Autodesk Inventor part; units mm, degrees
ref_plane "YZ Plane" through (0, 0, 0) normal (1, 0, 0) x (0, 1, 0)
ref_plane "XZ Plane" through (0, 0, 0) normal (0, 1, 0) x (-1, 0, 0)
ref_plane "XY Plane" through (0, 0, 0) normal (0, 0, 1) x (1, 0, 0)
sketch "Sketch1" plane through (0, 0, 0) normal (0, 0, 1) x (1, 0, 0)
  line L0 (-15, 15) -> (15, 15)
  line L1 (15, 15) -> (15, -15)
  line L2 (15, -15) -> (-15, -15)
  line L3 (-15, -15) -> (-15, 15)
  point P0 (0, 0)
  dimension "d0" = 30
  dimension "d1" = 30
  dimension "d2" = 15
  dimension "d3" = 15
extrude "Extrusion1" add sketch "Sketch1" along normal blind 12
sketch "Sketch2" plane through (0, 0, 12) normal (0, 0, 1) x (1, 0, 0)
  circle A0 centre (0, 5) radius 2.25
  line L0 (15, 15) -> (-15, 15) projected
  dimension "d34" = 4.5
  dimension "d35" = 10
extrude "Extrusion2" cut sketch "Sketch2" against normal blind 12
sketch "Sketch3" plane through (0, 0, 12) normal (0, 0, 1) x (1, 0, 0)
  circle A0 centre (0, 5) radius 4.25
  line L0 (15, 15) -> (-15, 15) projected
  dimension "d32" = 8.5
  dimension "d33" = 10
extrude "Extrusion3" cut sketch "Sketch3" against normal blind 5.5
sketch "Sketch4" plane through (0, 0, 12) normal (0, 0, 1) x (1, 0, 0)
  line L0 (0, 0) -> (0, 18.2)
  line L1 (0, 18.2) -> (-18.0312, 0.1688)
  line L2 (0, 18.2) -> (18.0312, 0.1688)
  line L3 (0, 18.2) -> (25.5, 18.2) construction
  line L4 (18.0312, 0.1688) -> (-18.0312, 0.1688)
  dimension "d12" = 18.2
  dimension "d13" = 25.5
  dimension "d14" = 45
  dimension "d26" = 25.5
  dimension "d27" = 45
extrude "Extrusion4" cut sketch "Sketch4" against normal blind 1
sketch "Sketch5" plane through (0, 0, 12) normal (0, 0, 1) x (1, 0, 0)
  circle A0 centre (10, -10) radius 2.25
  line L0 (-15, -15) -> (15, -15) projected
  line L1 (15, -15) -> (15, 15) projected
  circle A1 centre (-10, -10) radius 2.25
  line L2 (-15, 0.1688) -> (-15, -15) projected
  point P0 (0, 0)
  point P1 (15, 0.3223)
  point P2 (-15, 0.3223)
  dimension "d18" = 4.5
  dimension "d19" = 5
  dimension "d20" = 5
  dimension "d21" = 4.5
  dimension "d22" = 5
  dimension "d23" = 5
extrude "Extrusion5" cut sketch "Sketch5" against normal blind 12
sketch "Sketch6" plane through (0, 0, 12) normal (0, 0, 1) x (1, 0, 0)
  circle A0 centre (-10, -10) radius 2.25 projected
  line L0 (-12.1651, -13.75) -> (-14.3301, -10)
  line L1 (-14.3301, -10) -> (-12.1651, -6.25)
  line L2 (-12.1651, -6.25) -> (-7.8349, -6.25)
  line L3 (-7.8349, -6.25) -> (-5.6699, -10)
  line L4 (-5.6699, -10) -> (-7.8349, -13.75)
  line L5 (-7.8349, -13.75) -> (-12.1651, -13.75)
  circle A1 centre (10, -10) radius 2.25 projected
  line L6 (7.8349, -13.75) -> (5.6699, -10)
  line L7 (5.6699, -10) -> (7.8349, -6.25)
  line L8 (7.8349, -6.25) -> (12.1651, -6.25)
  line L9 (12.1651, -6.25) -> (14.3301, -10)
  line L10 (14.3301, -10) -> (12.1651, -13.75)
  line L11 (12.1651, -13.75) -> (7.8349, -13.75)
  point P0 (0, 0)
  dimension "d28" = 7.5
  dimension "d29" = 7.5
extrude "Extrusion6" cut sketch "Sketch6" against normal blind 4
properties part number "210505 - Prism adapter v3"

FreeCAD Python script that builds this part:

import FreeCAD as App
import Part
import Sketcher
Q = App.Units.Quantity

doc = App.newDocument("Part")
body = doc.addObject("PartDesign::Body", "Body")

# Sketch on XY plane
sketch1 = body.newObject("Sketcher::SketchObject", "Sketch")
sketch1.AttachmentSupport = (doc.getObject("XY_Plane"), [""])
sketch1.MapMode = "FlatFace"
sketch1.addGeometry([
    Part.LineSegment(App.Vector(15, 15, 0), App.Vector(-15, 15, 0)),
    Part.LineSegment(App.Vector(-15, 15, 0), App.Vector(-15, -15, 0)),
    Part.LineSegment(App.Vector(-15, -15, 0), App.Vector(15, -15, 0)),
    Part.LineSegment(App.Vector(15, -15, 0), App.Vector(15, 15, 0)),
], False)
sketch1.addConstraint([
    Sketcher.Constraint("Coincident", 0, 2, 1, 1),
    Sketcher.Constraint("Coincident", 1, 2, 2, 1),
    Sketcher.Constraint("Coincident", 2, 2, 3, 1),
    Sketcher.Constraint("Coincident", 3, 2, 0, 1),
    Sketcher.Constraint("Horizontal", 0),
    Sketcher.Constraint("Vertical", 1),
    Sketcher.Constraint("Horizontal", 2),
    Sketcher.Constraint("Vertical", 3),
    Sketcher.Constraint("Symmetric", 0, 2, 2, 2, -1, 1),
    Sketcher.Constraint("Equal", 2, 1),
    Sketcher.Constraint("DistanceX", 0, 2, 0, 1, 30.0),
])
pad1 = body.newObject("PartDesign::Pad", "Pad")
pad1.Profile = sketch1
pad1.Length = 12

# Sketch on XY plane
sketch2 = body.newObject("Sketcher::SketchObject", "Sketch001")
sketch2.AttachmentSupport = (doc.getObject("XY_Plane"), [""])
sketch2.MapMode = "FlatFace"
sketch2.AttachmentOffset = App.Placement(App.Vector(0, 0, 12), App.Rotation())
sketch2.addGeometry(Part.Circle(App.Vector(0, 5, 0), App.Vector(0, 0, 1), 2.25), False)
sketch2.addConstraint([
    Sketcher.Constraint("PointOnObject", 0, 3, -2),
    Sketcher.Constraint("Diameter", 0, 4.5),
    Sketcher.Constraint("DistanceY", -1, 1, 0, 3, 5.0),
])
pocket1 = body.newObject("PartDesign::Pocket", "Pocket")
pocket1.Profile = sketch2
pocket1.Length = 12

# Sketch on XY plane
sketch3 = body.newObject("Sketcher::SketchObject", "Sketch002")
sketch3.AttachmentSupport = (doc.getObject("XY_Plane"), [""])
sketch3.MapMode = "FlatFace"
sketch3.AttachmentOffset = App.Placement(App.Vector(0, 0, 12), App.Rotation())
sketch3.addGeometry(Part.Circle(App.Vector(0, 5, 0), App.Vector(0, 0, 1), 4.25), False)
sketch3.addConstraint([
    Sketcher.Constraint("PointOnObject", 0, 3, -2),
    Sketcher.Constraint("Diameter", 0, 8.5),
    Sketcher.Constraint("DistanceY", -1, 1, 0, 3, 5.0),
])
pocket2 = body.newObject("PartDesign::Pocket", "Pocket001")
pocket2.Profile = sketch3
pocket2.Length = 5.5

# Sketch on XY plane
sketch4 = body.newObject("Sketcher::SketchObject", "Sketch003")
sketch4.AttachmentSupport = (doc.getObject("XY_Plane"), [""])
sketch4.MapMode = "FlatFace"
sketch4.AttachmentOffset = App.Placement(App.Vector(0, 0, 12), App.Rotation())
sketch4.addGeometry([
    Part.LineSegment(App.Vector(-18.0312, 0.1688, 0), App.Vector(18.0312, 0.1688, 0)),
    Part.LineSegment(App.Vector(18.0312, 0.1688, 0), App.Vector(0, 18.2, 0)),
    Part.LineSegment(App.Vector(0, 18.2, 0), App.Vector(-18.0312, 0.1688, 0)),
], False)
sketch4.addConstraint([
    Sketcher.Constraint("Coincident", 0, 2, 1, 1),
    Sketcher.Constraint("Coincident", 1, 2, 2, 1),
    Sketcher.Constraint("Coincident", 2, 2, 0, 1),
    Sketcher.Constraint("Horizontal", 0),
    Sketcher.Constraint("PointOnObject", 1, 2, -2),
    Sketcher.Constraint("Perpendicular", 1, 2),
    Sketcher.Constraint("Equal", 1, 2),
    Sketcher.Constraint("Distance", 1, 25.5),
    Sketcher.Constraint("DistanceY", -1, 1, 1, 2, 18.2),
])
pocket3 = body.newObject("PartDesign::Pocket", "Pocket002")
pocket3.Profile = sketch4
pocket3.Length = 1

# Sketch on XY plane
sketch5 = body.newObject("Sketcher::SketchObject", "Sketch004")
sketch5.AttachmentSupport = (doc.getObject("XY_Plane"), [""])
sketch5.MapMode = "FlatFace"
sketch5.AttachmentOffset = App.Placement(App.Vector(0, 0, 12), App.Rotation())
sketch5.addGeometry([
    Part.Circle(App.Vector(10, -10, 0), App.Vector(0, 0, 1), 2.25),
    Part.Circle(App.Vector(-10, -10, 0), App.Vector(0, 0, 1), 2.25),
], False)
sketch5.addConstraint([
    Sketcher.Constraint("Equal", 0, 1),
    Sketcher.Constraint("Symmetric", 0, 3, 1, 3, -2),
    Sketcher.Constraint("Diameter", 0, 4.5),
    Sketcher.Constraint("DistanceX", -1, 1, 0, 3, 10.0),
    Sketcher.Constraint("DistanceY", 0, 3, -1, 1, 10.0),
])
pocket4 = body.newObject("PartDesign::Pocket", "Pocket003")
pocket4.Profile = sketch5
pocket4.Length = 12

# Sketch on XY plane
sketch6 = body.newObject("Sketcher::SketchObject", "Sketch005")
sketch6.AttachmentSupport = (doc.getObject("XY_Plane"), [""])
sketch6.MapMode = "FlatFace"
sketch6.AttachmentOffset = App.Placement(App.Vector(0, 0, 12), App.Rotation())
sketch6.addGeometry([
    Part.LineSegment(App.Vector(-14.3301, -10, 0), App.Vector(-12.1651, -13.75, 0)),  # 0
    Part.LineSegment(App.Vector(-12.1651, -13.75, 0), App.Vector(-7.8349, -13.75, 0)),  # 1
    Part.LineSegment(App.Vector(-7.8349, -13.75, 0), App.Vector(-5.6699, -10, 0)),  # 2
    Part.LineSegment(App.Vector(-5.6699, -10, 0), App.Vector(-7.8349, -6.25, 0)),  # 3
    Part.LineSegment(App.Vector(-7.8349, -6.25, 0), App.Vector(-12.1651, -6.25, 0)),  # 4
    Part.LineSegment(App.Vector(-12.1651, -6.25, 0), App.Vector(-14.3301, -10, 0)),  # 5
    Part.Circle(App.Vector(-10, -10, 0), App.Vector(0, 0, 1), 2.25),  # 6
    Part.LineSegment(App.Vector(5.6699, -10, 0), App.Vector(7.8349, -13.75, 0)),  # 7
    Part.LineSegment(App.Vector(7.8349, -13.75, 0), App.Vector(12.1651, -13.75, 0)),  # 8
    Part.LineSegment(App.Vector(12.1651, -13.75, 0), App.Vector(14.3301, -10, 0)),  # 9
    Part.LineSegment(App.Vector(14.3301, -10, 0), App.Vector(12.1651, -6.25, 0)),  # 10
    Part.LineSegment(App.Vector(12.1651, -6.25, 0), App.Vector(7.8349, -6.25, 0)),  # 11
    Part.LineSegment(App.Vector(7.8349, -6.25, 0), App.Vector(5.6699, -10, 0)),  # 12
    Part.Circle(App.Vector(10, -10, 0), App.Vector(0, 0, 1), 2.25),  # 13
], False)
sketch6.addConstraint([
    Sketcher.Constraint("Coincident", 0, 2, 1, 1),
    Sketcher.Constraint("Coincident", 1, 2, 2, 1),
    Sketcher.Constraint("Coincident", 2, 2, 3, 1),
    Sketcher.Constraint("Coincident", 3, 2, 4, 1),
    Sketcher.Constraint("Coincident", 4, 2, 5, 1),
    Sketcher.Constraint("Coincident", 5, 2, 0, 1),
    Sketcher.Constraint("Coincident", 7, 2, 8, 1),
    Sketcher.Constraint("Coincident", 8, 2, 9, 1),
    Sketcher.Constraint("Coincident", 9, 2, 10, 1),
    Sketcher.Constraint("Coincident", 10, 2, 11, 1),
    Sketcher.Constraint("Coincident", 11, 2, 12, 1),
    Sketcher.Constraint("Coincident", 12, 2, 7, 1),
    Sketcher.Constraint("Horizontal", 1),
    Sketcher.Constraint("Horizontal", 4),
    Sketcher.Constraint("Horizontal", 8),
    Sketcher.Constraint("Horizontal", 11),
    Sketcher.Constraint("Equal", 6, 13),
    Sketcher.Constraint("Symmetric", 6, 3, 13, 3, -2),
    Sketcher.Constraint("Symmetric", 1, 2, 7, 2, -2),
    Sketcher.Constraint("Symmetric", 5, 2, 9, 2, -2),
    Sketcher.Constraint("Symmetric", 4, 2, 10, 2, -2),
    Sketcher.Constraint("Symmetric", 2, 2, 12, 2, -2),
    Sketcher.Constraint("Parallel", 0, 3),
    Sketcher.Constraint("Parallel", 2, 5),
    Sketcher.Constraint("Parallel", 3, 7),
    Sketcher.Constraint("Parallel", 5, 9),
    Sketcher.Constraint("Parallel", 9, 12),
    Sketcher.Constraint("Horizontal", 13, 3, 2, 2),
    Sketcher.Constraint("Horizontal", 2, 2, 5, 2),
    Sketcher.Constraint("Vertical", 1, 2, 3, 2),
    Sketcher.Constraint("Diameter", 6, 4.5),
    Sketcher.Constraint("DistanceY", 1, 2, 3, 2, 7.5),
    Sketcher.Constraint("Angle", 0, Q("-60.0007 deg")),
    Sketcher.Constraint("DistanceX", 6, 3, -1, 1, 10.0),
    Sketcher.Constraint("DistanceY", 6, 3, -1, 1, 10.0),
    Sketcher.Constraint("DistanceX", 1, 2, 8, 2, 20.0),
    Sketcher.Constraint("DistanceX", 2, 2, -1, 1, 5.67),
])
pocket5 = body.newObject("PartDesign::Pocket", "Pocket004")
pocket5.Profile = sketch6
pocket5.Length = 4

doc.recompute()
